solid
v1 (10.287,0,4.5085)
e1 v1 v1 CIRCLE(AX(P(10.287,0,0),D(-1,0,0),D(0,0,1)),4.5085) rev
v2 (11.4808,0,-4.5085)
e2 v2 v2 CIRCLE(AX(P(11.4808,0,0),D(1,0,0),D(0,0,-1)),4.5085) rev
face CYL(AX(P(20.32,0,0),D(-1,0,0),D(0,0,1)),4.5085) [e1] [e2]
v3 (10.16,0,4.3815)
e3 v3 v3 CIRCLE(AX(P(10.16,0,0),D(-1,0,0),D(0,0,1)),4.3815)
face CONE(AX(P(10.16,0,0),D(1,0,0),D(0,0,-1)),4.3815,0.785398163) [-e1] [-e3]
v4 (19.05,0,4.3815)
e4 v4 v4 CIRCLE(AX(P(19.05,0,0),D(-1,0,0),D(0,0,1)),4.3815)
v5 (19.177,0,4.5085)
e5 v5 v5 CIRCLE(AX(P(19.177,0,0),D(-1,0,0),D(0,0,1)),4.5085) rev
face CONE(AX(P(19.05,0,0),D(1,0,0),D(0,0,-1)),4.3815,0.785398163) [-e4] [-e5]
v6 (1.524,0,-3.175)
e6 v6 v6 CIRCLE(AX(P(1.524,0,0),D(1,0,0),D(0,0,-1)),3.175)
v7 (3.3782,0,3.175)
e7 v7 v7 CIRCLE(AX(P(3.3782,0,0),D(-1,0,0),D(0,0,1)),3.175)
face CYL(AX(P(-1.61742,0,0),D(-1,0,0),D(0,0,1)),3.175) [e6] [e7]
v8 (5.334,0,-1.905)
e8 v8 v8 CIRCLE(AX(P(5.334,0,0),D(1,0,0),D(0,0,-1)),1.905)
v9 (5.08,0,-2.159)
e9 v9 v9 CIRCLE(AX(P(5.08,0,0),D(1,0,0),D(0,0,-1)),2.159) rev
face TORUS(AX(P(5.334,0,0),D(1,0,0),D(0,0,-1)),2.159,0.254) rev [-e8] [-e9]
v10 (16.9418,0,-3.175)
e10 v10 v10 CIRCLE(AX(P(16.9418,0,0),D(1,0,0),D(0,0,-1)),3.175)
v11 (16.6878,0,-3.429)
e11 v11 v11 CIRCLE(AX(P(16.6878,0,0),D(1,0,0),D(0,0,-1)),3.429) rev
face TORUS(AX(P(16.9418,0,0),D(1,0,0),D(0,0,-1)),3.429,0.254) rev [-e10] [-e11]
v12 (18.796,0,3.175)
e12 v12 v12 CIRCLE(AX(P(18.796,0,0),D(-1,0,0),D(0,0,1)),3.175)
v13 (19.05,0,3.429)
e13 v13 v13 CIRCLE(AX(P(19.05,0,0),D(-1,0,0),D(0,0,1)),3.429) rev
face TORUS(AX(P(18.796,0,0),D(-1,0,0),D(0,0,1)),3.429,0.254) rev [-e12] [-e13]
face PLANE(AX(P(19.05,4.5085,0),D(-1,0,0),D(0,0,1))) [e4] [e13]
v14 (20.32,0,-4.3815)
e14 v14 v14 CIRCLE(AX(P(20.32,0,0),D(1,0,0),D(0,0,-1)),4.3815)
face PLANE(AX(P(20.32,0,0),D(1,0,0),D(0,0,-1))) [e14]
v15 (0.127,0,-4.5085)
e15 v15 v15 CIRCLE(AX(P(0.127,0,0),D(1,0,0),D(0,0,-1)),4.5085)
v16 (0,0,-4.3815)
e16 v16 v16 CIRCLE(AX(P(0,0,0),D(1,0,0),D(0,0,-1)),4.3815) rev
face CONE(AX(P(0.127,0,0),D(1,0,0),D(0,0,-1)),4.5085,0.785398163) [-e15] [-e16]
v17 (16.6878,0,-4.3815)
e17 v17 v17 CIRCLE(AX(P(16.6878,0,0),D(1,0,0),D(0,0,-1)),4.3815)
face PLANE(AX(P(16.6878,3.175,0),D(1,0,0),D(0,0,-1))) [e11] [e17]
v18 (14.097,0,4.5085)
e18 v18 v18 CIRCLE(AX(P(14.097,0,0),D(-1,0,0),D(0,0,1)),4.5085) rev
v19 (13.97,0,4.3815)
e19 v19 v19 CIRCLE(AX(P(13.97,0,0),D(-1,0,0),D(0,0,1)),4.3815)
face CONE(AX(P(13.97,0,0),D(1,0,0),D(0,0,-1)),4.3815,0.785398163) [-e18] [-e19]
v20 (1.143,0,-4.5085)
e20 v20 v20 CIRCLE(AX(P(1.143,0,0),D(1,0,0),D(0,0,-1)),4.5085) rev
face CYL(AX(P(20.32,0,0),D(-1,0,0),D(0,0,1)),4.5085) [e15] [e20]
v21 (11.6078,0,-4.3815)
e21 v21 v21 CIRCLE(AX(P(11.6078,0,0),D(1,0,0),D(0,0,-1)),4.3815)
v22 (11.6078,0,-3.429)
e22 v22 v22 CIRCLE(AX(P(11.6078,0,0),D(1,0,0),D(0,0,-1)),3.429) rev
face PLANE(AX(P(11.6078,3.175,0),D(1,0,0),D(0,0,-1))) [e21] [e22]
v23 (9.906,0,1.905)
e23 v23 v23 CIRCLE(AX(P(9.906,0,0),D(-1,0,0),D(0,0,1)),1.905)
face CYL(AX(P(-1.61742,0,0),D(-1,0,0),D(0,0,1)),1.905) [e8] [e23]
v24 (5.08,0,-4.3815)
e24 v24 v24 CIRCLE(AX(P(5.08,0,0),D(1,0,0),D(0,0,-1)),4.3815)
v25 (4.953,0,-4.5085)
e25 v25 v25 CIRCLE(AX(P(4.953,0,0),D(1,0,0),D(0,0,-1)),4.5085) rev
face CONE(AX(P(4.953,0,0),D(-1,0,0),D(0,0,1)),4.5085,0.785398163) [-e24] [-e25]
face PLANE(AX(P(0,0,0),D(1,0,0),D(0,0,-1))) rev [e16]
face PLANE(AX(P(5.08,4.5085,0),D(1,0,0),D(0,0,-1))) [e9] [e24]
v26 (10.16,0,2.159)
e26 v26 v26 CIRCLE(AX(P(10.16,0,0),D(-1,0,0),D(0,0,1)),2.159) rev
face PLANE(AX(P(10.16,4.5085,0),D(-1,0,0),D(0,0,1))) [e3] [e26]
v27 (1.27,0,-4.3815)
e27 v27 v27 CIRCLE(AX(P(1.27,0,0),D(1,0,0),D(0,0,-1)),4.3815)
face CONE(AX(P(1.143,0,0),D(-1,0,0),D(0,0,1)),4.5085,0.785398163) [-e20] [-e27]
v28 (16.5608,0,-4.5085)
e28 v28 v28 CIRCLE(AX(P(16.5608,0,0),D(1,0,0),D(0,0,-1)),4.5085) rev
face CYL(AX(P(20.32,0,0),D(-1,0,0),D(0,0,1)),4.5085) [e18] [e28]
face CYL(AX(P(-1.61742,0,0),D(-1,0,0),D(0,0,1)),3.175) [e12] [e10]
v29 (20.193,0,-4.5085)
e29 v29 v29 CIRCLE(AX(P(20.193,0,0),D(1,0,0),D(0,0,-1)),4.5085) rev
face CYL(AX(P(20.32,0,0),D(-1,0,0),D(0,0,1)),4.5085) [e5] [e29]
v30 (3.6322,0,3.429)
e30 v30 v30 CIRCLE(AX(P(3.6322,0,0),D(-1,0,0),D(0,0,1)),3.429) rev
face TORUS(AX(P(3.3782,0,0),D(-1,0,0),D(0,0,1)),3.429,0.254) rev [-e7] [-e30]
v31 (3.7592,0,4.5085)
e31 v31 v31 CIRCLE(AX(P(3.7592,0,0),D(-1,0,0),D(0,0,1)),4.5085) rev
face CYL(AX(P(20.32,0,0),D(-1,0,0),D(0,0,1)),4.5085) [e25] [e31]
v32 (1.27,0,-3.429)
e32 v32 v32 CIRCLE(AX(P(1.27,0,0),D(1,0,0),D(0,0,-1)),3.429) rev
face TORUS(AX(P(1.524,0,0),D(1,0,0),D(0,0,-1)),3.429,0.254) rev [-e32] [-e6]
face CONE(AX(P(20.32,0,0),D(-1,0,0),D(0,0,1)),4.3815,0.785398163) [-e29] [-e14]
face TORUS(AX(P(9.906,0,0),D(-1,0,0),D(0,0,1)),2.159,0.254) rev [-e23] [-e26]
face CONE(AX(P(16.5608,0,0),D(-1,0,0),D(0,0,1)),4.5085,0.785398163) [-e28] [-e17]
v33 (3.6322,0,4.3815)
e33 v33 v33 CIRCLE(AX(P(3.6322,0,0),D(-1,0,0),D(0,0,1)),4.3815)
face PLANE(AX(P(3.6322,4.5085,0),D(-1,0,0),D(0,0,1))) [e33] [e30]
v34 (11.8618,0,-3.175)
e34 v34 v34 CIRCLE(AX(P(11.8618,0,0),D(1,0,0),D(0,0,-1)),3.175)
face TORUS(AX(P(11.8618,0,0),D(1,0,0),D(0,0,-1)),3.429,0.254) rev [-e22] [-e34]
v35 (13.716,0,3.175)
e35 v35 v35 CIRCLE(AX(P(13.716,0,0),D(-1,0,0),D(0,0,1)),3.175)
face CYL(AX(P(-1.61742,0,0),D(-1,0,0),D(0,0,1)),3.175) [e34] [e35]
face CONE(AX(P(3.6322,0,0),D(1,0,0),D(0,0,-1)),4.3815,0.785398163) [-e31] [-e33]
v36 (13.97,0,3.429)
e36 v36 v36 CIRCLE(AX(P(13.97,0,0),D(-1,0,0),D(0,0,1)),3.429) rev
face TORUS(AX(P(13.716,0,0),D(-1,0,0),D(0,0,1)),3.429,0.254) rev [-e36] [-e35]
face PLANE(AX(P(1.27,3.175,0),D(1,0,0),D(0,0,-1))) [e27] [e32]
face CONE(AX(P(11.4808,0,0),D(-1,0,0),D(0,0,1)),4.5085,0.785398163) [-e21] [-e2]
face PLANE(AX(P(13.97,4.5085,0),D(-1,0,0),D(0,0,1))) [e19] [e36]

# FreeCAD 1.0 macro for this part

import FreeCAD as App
import Part
import Sketcher
Q = App.Units.Quantity


def edges_at(feature, points):
    """Names of the edges that pass closest to the given points."""
    edges = feature.Shape.Edges
    near = lambda p: min(range(len(edges)), key=lambda i: edges[i].distToShape(Part.Vertex(*p))[0])
    return sorted({f"Edge{near(p) + 1}" for p in points})


def add_polygon(sketch, points):
    """Adds a closed chain of lines whose ends are joined by coincident constraints."""
    first, n = sketch.GeometryCount, len(points)
    for a, b in zip(points, points[1:] + points[:1]):
        sketch.addGeometry(Part.LineSegment(App.Vector(*a, 0), App.Vector(*b, 0)), False)
    for i in range(n):
        sketch.addConstraint(Sketcher.Constraint("Coincident", first + i, 2, first + (i + 1) % n, 1))

doc = App.newDocument("Part")
params = doc.addObject("Spreadsheet::Sheet", "Params")
for row, (alias, value) in enumerate([
    ("sketch1_diameter", "0.355 in"),
    ("pad1_length", "0.8 in"),
    ("sketch2_width", "0.2 in"),
    ("sketch2_width2", "0.093 in"),
    ("groove_angle", "360 deg"),
    ("fillet_radius", "0.01 in"),
    ("chamfer_size", "0.005 in"),
    ("chamfer2_size", "0.005 in"),
], start=1):
    params.set(f"A{row}", alias)
    params.set(f"B{row}", "=" + value)
    params.setAlias(f"B{row}", alias)

body = doc.addObject("PartDesign::Body", "Body")

# Sketch on YZ plane
sketch1 = body.newObject("Sketcher::SketchObject", "Sketch")
sketch1.AttachmentSupport = (doc.getObject("YZ_Plane"), [""])
sketch1.MapMode = "FlatFace"
sketch1.addGeometry(Part.Circle(App.Vector(0, 0, 0), App.Vector(0, 0, 1), 4.5085), False)
sketch1.addConstraint(Sketcher.Constraint("Coincident", 0, 3, -1, 1))
sketch1.addConstraint(Sketcher.Constraint("Diameter", 0, Q("0.355 in")))
sketch1.setExpression("Constraints[1]", "Params.sketch1_diameter")
pad1 = body.newObject("PartDesign::Pad", "Pad")
pad1.Profile = sketch1
pad1.setExpression("Length", "Params.pad1_length")

# Sketch on XY plane
sketch2 = body.newObject("Sketcher::SketchObject", "Sketch001")
sketch2.AttachmentSupport = (doc.getObject("XY_Plane"), [""])
sketch2.MapMode = "FlatFace"
add_polygon(sketch2, [(1.27, 4.5085), (1.27, 3.175), (3.6322, 3.175), (3.6322, 4.5085)])  # lines 0-3
add_polygon(sketch2, [(16.6878, 4.5085), (16.6878, 3.175), (19.05, 3.175), (19.05, 4.5085)])  # lines 4-7
add_polygon(sketch2, [(11.6078, 4.5085), (11.6078, 3.175), (13.97, 3.175), (13.97, 4.5085)])  # lines 8-11
add_polygon(sketch2, [(5.08, 4.5085), (5.08, 1.905), (10.16, 1.905), (10.16, 4.5085)])  # lines 12-15
sketch2.addConstraint(Sketcher.Constraint("Vertical", 0))
sketch2.addConstraint(Sketcher.Constraint("Horizontal", 1))
sketch2.addConstraint(Sketcher.Constraint("Vertical", 2))
sketch2.addConstraint(Sketcher.Constraint("Horizontal", 3))
sketch2.addConstraint(Sketcher.Constraint("Vertical", 4))
sketch2.addConstraint(Sketcher.Constraint("Horizontal", 5))
sketch2.addConstraint(Sketcher.Constraint("Vertical", 6))
sketch2.addConstraint(Sketcher.Constraint("Horizontal", 7))
sketch2.addConstraint(Sketcher.Constraint("Vertical", 8))
sketch2.addConstraint(Sketcher.Constraint("Horizontal", 9))
sketch2.addConstraint(Sketcher.Constraint("Vertical", 10))
sketch2.addConstraint(Sketcher.Constraint("Horizontal", 11))
sketch2.addConstraint(Sketcher.Constraint("Vertical", 12))
sketch2.addConstraint(Sketcher.Constraint("Horizontal", 13))
sketch2.addConstraint(Sketcher.Constraint("Vertical", 14))
sketch2.addConstraint(Sketcher.Constraint("Horizontal", 15))
sketch2.addConstraint(Sketcher.Constraint("Horizontal", 1, 2, 4, 2))
sketch2.addConstraint(Sketcher.Constraint("Horizontal", 3, 2, 6, 2))
sketch2.addConstraint(Sketcher.Constraint("Horizontal", 5, 2, 8, 2))
sketch2.addConstraint(Sketcher.Constraint("Horizontal", 7, 2, 10, 2))
sketch2.addConstraint(Sketcher.Constraint("Horizontal", 11, 2, 14, 2))
sketch2.addConstraint(Sketcher.Constraint("Equal", 3, 5))
sketch2.addConstraint(Sketcher.Constraint("Equal", 7, 9))
sketch2.addConstraint(Sketcher.Constraint("DistanceX", 13, 1, 13, 2, Q("0.2 in")))
sketch2.addConstraint(Sketcher.Constraint("DistanceX", -1, 1, 12, 2, Q("0.2 in")))
sketch2.addConstraint(Sketcher.Constraint("DistanceX", 0, 2, 5, 2, Q("0.7 in")))
sketch2.addConstraint(Sketcher.Constraint("DistanceX", 8, 2, 4, 2, Q("0.2 in")))
sketch2.addConstraint(Sketcher.Constraint("DistanceX", 1, 1, 1, 2, Q("0.093 in")))
sketch2.addConstraint(Sketcher.Constraint("DistanceX", -1, 1, 0, 2, Q("0.05 in")))
sketch2.addConstraint(Sketcher.Constraint("DistanceY", 12, 2, 1, 2, Q("0.05 in")))
sketch2.addConstraint(Sketcher.Constraint("DistanceY", 0, 2, 0, 1, Q("0.0525 in")))
sketch2.addConstraint(Sketcher.Constraint("DistanceY", -1, 1, 0, 2, Q("0.125 in")))
sketch2.setExpression("Constraints[39]", "Params.sketch2_width")
sketch2.setExpression("Constraints[43]", "Params.sketch2_width2")
groove = body.newObject("PartDesign::Groove", "Groove")
groove.Profile = sketch2
groove.ReferenceAxis = (sketch2, ["H_Axis"])
groove.setExpression("Angle", "Params.groove_angle")
doc.recompute()

fillet = body.newObject("PartDesign::Fillet", "Fillet")
fillet.Base = (groove, edges_at(groove, [
    (3.632, 0, -3.175),
    (1.27, 0, -3.175),
    (19.05, 0, -3.175),
    (16.688, 0, -3.175),
    (13.97, 0, -3.175),
    (11.608, 0, -3.175),
    (5.08, 0, -1.905),
    (10.16, 0, -1.905),
]))
fillet.setExpression("Radius", "Params.fillet_radius")
doc.recompute()

chamfer = body.newObject("PartDesign::Chamfer", "Chamfer")
chamfer.Base = (fillet, edges_at(fillet, [
    (3.632, 0, 4.508),
    (19.05, 0, 4.508),
    (13.97, 0, 4.508),
    (10.16, 0, 4.508),
    (0, 0, 4.508),
]))
chamfer.setExpression("Size", "Params.chamfer_size")
doc.recompute()

chamfer2 = body.newObject("PartDesign::Chamfer", "Chamfer001")
chamfer2.Base = (chamfer, edges_at(chamfer, [
    (1.27, 0, 4.508),
    (16.688, 0, 4.508),
    (11.608, 0, 4.508),
    (5.08, 0, 4.508),
    (20.32, 0, 4.508),
]))
chamfer2.setExpression("Size", "Params.chamfer2_size")

doc.recompute()
